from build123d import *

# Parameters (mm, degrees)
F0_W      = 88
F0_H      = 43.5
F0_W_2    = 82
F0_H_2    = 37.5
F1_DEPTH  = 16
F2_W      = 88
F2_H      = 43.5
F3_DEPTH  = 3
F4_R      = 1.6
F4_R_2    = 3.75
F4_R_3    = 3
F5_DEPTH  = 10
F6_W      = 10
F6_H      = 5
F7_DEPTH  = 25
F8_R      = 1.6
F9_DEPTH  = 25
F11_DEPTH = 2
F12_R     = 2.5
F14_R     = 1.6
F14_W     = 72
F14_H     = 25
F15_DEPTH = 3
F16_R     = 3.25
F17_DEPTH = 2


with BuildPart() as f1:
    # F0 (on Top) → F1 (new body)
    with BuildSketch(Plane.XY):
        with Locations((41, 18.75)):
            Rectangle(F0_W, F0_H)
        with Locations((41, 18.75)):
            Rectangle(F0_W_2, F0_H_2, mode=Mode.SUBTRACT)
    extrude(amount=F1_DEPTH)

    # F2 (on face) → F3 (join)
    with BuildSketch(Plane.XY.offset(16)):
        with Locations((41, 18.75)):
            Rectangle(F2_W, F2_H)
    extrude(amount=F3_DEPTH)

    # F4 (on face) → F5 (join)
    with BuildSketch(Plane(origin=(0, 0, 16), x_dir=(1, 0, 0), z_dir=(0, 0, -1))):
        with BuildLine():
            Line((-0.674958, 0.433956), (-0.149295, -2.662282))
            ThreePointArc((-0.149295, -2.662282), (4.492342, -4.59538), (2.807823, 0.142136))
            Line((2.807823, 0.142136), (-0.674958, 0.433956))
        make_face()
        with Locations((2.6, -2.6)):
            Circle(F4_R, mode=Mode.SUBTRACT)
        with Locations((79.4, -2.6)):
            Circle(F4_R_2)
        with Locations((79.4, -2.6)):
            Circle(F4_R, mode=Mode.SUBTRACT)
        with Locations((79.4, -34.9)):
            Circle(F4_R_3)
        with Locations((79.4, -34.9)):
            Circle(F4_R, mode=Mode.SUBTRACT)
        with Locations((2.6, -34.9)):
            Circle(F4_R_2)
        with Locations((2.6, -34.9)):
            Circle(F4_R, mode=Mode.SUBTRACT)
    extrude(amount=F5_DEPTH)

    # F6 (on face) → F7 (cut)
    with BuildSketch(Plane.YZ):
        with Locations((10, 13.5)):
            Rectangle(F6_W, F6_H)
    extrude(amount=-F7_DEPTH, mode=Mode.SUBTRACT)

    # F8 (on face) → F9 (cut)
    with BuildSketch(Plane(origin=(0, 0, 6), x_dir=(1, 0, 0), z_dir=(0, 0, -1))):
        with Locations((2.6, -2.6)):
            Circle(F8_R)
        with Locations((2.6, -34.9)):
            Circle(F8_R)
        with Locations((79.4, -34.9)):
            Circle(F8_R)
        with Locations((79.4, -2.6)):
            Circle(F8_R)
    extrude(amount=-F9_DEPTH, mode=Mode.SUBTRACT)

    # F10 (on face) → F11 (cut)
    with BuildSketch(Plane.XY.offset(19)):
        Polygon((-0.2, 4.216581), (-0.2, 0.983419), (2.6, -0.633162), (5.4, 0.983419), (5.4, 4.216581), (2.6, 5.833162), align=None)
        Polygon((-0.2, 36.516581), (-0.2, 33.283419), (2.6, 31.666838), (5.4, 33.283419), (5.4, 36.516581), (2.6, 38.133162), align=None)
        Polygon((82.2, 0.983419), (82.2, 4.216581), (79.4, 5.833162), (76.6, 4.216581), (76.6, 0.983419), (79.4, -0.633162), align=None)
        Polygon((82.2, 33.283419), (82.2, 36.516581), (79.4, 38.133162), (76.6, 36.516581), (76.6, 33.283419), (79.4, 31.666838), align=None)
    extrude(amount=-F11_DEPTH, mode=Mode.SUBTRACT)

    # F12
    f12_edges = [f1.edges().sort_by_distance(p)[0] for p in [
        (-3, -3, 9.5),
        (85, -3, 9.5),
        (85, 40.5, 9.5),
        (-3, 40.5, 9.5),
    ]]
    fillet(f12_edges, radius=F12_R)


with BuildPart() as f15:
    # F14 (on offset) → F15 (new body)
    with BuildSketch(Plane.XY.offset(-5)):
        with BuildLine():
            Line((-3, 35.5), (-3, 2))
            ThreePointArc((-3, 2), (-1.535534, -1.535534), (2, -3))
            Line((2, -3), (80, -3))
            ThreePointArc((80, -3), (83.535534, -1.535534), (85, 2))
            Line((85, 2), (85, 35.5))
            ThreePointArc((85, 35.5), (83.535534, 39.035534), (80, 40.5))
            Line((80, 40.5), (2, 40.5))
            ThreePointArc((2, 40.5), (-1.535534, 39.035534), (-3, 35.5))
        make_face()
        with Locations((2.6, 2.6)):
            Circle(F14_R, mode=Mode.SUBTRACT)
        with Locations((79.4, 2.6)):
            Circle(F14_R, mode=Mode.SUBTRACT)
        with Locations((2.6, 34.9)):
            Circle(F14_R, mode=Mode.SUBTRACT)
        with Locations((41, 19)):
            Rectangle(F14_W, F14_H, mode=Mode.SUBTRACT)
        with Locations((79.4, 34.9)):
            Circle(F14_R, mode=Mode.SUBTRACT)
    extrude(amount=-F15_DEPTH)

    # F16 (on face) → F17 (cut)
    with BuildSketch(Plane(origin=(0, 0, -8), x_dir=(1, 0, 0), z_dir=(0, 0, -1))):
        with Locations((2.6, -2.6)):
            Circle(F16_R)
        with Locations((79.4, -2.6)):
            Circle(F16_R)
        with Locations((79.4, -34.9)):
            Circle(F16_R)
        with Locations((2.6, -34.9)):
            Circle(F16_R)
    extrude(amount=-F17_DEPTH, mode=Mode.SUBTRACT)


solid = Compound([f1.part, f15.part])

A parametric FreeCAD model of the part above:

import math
import FreeCAD as App
import Part
import Sketcher

V = App.Vector
Q = App.Units.Quantity


def edges_at(feature, points):
    """Names of the edges that pass closest to the given points."""
    edges = feature.Shape.Edges
    near = lambda p: min(range(len(edges)), key=lambda i: edges[i].distToShape(Part.Vertex(*p))[0])
    return sorted({f"Edge{near(p) + 1}" for p in points})


def add_polygon(sketch, points):
    """Adds a closed chain of lines whose ends are joined by coincident constraints."""
    first, n = sketch.GeometryCount, len(points)
    for a, b in zip(points, points[1:] + points[:1]):
        sketch.addGeometry(Part.LineSegment(App.Vector(*a, 0), App.Vector(*b, 0)), False)
    for i in range(n):
        sketch.addConstraint(Sketcher.Constraint("Coincident", first + i, 2, first + (i + 1) % n, 1))

doc = App.newDocument("Part")
params = doc.addObject("Spreadsheet::Sheet", "Params")
for row, (alias, value) in enumerate([
    ("sketch1_width", "88 mm"),
    ("sketch1_width2", "82 mm"),
    ("sketch1_height", "43.5 mm"),
    ("sketch1_height2", "37.5 mm"),
    ("pad1_length", "16 mm"),
    ("sketch2_width", "88 mm"),
    ("sketch2_height", "43.5 mm"),
    ("pad2_length", "3 mm"),
    ("sketch3_diameter", "6 mm"),
    ("sketch3_diameter2", "3.2 mm"),
    ("sketch3_diameter3", "7.5 mm"),
    ("sketch3_radius", "2.75 mm"),
    ("pad3_length", "10 mm"),
    ("sketch4_width", "10 mm"),
    ("sketch4_height", "5 mm"),
    ("pocket1_length", "25 mm"),
    ("sketch5_diameter", "3.2 mm"),
    ("pocket2_length", "25 mm"),
    ("pocket3_length", "2 mm"),
    ("fillet_radius", "2.5 mm"),
    ("sketch7_radius", "5 mm"),
    ("sketch7_diameter", "3.2 mm"),
    ("sketch7_width", "78 mm"),
    ("sketch7_width2", "72 mm"),
    ("sketch7_height", "25 mm"),
    ("pad4_length", "3 mm"),
    ("sketch8_diameter", "6.5 mm"),
    ("pocket4_length", "2 mm"),
], start=1):
    params.set(f"A{row}", alias)
    params.set(f"B{row}", "=" + value)
    params.setAlias(f"B{row}", alias)

body = doc.addObject("PartDesign::Body", "Body")

# Sketch on XY plane
sketch1 = doc.addObject("Sketcher::SketchObject", "Sketch")
body.addObject(sketch1)
sketch1.AttachmentSupport = (doc.XY_Plane, [""])
sketch1.MapMode = "FlatFace"
add_polygon(sketch1, [(-3, 40), (-3, -3), (85, -3), (85, 40)])  # lines 0-3
add_polygon(sketch1, [(82, 0), (0, 0), (0, 38), (82, 38)])  # lines 4-7
sketch1.addConstraint([
    Sketcher.Constraint("Vertical", 0),
    Sketcher.Constraint("Horizontal", 1),
    Sketcher.Constraint("Vertical", 2),
    Sketcher.Constraint("Horizontal", 3),
    Sketcher.Constraint("Horizontal", 4),
    Sketcher.Constraint("Vertical", 5),
    Sketcher.Constraint("Horizontal", 6),
    Sketcher.Constraint("Vertical", 7),
    Sketcher.Constraint("Coincident", 4, 2, -1, 1),
    Sketcher.Constraint("DistanceX", 1, 1, 1, 2, Q("88 mm")),
    Sketcher.Constraint("DistanceX", 4, 2, 4, 1, Q("82 mm")),
    Sketcher.Constraint("DistanceY", 0, 2, 0, 1, Q("43.5 mm")),
    Sketcher.Constraint("DistanceY", 5, 1, 5, 2, Q("37.5 mm")),
    Sketcher.Constraint("DistanceX", 0, 2, -1, 1, Q("3 mm")),
    Sketcher.Constraint("DistanceY", 0, 2, -1, 1, Q("3 mm")),
])
sketch1.setExpression("Constraints[17]", "Params.sketch1_width")
sketch1.setExpression("Constraints[18]", "Params.sketch1_width2")
sketch1.setExpression("Constraints[19]", "Params.sketch1_height")
sketch1.setExpression("Constraints[20]", "Params.sketch1_height2")
pad1 = doc.addObject("PartDesign::Pad", "Pad")
body.addObject(pad1)
pad1.Profile = sketch1
pad1.setExpression("Length", "Params.pad1_length")

# Sketch on XY plane
sketch2 = doc.addObject("Sketcher::SketchObject", "Sketch001")
body.addObject(sketch2)
sketch2.AttachmentSupport = (doc.XY_Plane, [""])
sketch2.MapMode = "FlatFace"
sketch2.AttachmentOffset = App.Placement(V(0, 0, 16), App.Rotation())
add_polygon(sketch2, [(-3, 40), (-3, -3), (85, -3), (85, 40)])  # lines 0-3
sketch2.addConstraint([
    Sketcher.Constraint("Vertical", 0),
    Sketcher.Constraint("Horizontal", 1),
    Sketcher.Constraint("Vertical", 2),
    Sketcher.Constraint("Horizontal", 3),
    Sketcher.Constraint("DistanceX", 1, 1, 1, 2, Q("88 mm")),
    Sketcher.Constraint("DistanceY", 0, 2, 0, 1, Q("43.5 mm")),
    Sketcher.Constraint("DistanceX", 0, 2, -1, 1, Q("3 mm")),
    Sketcher.Constraint("DistanceY", 0, 2, -1, 1, Q("3 mm")),
])
sketch2.setExpression("Constraints[8]", "Params.sketch2_width")
sketch2.setExpression("Constraints[9]", "Params.sketch2_height")
pad2 = doc.addObject("PartDesign::Pad", "Pad001")
body.addObject(pad2)
pad2.Profile = sketch2
pad2.setExpression("Length", "Params.pad2_length")

# Sketch on XY plane
sketch3 = doc.addObject("Sketcher::SketchObject", "Sketch002")
body.addObject(sketch3)
sketch3.AttachmentSupport = (doc.XY_Plane, [""])
sketch3.MapMode = "FlatFace"
sketch3.AttachmentOffset = App.Placement(V(0, 0, 16), App.Rotation())
sketch3.addGeometry([
    Part.LineSegment(V(-0.7, -0.4, 0), V(-0.1, 2.7, 0)),  # 0
    Part.ArcOfCircle(Part.Circle(V(2.6, 2.6, 0), V(0, 0, 1), 2.8), math.radians(-86), math.radians(179)),  # 1
    Part.LineSegment(V(2.8, -0.1, 0), V(-0.7, -0.4, 0)),  # 2
    Part.Circle(V(2.6, 2.6, 0), V(0, 0, 1), 1.6),  # 3
    Part.Circle(V(79.4, 2.6, 0), V(0, 0, 1), 3.8),  # 4
    Part.Circle(V(79.4, 2.6, 0), V(0, 0, 1), 1.6),  # 5
    Part.Circle(V(79.4, 34.9, 0), V(0, 0, 1), 3),  # 6
    Part.Circle(V(79.4, 34.9, 0), V(0, 0, 1), 1.6),  # 7
    Part.Circle(V(2.6, 34.9, 0), V(0, 0, 1), 3.8),  # 8
    Part.Circle(V(2.6, 34.9, 0), V(0, 0, 1), 1.6),  # 9
], False)
sketch3.addConstraint([
    Sketcher.Constraint("Coincident", 0, 2, 1, 2),
    Sketcher.Constraint("Coincident", 1, 1, 2, 1),
    Sketcher.Constraint("Coincident", 2, 2, 0, 1),
    Sketcher.Constraint("Coincident", 3, 3, 1, 3),
    Sketcher.Constraint("Coincident", 5, 3, 4, 3),
    Sketcher.Constraint("Coincident", 7, 3, 6, 3),
    Sketcher.Constraint("Coincident", 9, 3, 8, 3),
    Sketcher.Constraint("Equal", 3, 5),
    Sketcher.Constraint("Equal", 5, 7),
    Sketcher.Constraint("Equal", 4, 8),
    Sketcher.Constraint("Equal", 7, 9),
    Sketcher.Constraint("Horizontal", 3, 3, 4, 3),
    Sketcher.Constraint("Horizontal", 7, 3, 8, 3),
    Sketcher.Constraint("Vertical", 5, 3, 6, 3),
    Sketcher.Constraint("Vertical", 3, 3, 8, 3),
    Sketcher.Constraint("Diameter", 6, Q("6 mm")),
    Sketcher.Constraint("Diameter", 3, Q("3.2 mm")),
    Sketcher.Constraint("Diameter", 4, Q("7.5 mm")),
    Sketcher.Constraint("Radius", 1, Q("2.75 mm")),
    Sketcher.Constraint("DistanceX", -1, 1, 1, 3, Q("2.6 mm")),
    Sketcher.Constraint("DistanceY", -1, 1, 1, 3, Q("2.6 mm")),
    Sketcher.Constraint("DistanceX", -1, 1, 4, 3, Q("79.4 mm")),
    Sketcher.Constraint("DistanceY", -1, 1, 6, 3, Q("34.9 mm")),
    Sketcher.Constraint("DistanceY", -1, 1, 0, 2, Q("2.662282 mm")),
    Sketcher.Constraint("DistanceX", 2, 2, 1, 1, Q("3.482781 mm")),
    Sketcher.Constraint("DistanceY", 2, 2, 1, 1, Q("0.29182 mm")),
    Sketcher.Constraint("Distance", 0, Q("3.140543 mm")),
])
sketch3.setExpression("Constraints[15]", "Params.sketch3_diameter")
sketch3.setExpression("Constraints[16]", "Params.sketch3_diameter2")
sketch3.setExpression("Constraints[17]", "Params.sketch3_diameter3")
sketch3.setExpression("Constraints[18]", "Params.sketch3_radius")
pad3 = doc.addObject("PartDesign::Pad", "Pad002")
body.addObject(pad3)
pad3.Profile = sketch3
pad3.setExpression("Length", "Params.pad3_length")
pad3.Reversed = True

# Sketch on YZ plane
sketch4 = doc.addObject("Sketcher::SketchObject", "Sketch003")
body.addObject(sketch4)
sketch4.AttachmentSupport = (doc.YZ_Plane, [""])
sketch4.MapMode = "FlatFace"
add_polygon(sketch4, [(5, 16), (5, 11), (15, 11), (15, 16)])  # lines 0-3
sketch4.addConstraint([
    Sketcher.Constraint("Vertical", 0),
    Sketcher.Constraint("Horizontal", 1),
    Sketcher.Constraint("Vertical", 2),
    Sketcher.Constraint("Horizontal", 3),
    Sketcher.Constraint("DistanceX", 1, 1, 1, 2, Q("10 mm")),
    Sketcher.Constraint("DistanceY", 0, 2, 0, 1, Q("5 mm")),
    Sketcher.Constraint("DistanceX", -1, 1, 0, 2, Q("5 mm")),
    Sketcher.Constraint("DistanceY", -1, 1, 0, 2, Q("11 mm")),
])
sketch4.setExpression("Constraints[8]", "Params.sketch4_width")
sketch4.setExpression("Constraints[9]", "Params.sketch4_height")
pocket1 = doc.addObject("PartDesign::Pocket", "Pocket")
body.addObject(pocket1)
pocket1.Profile = sketch4
pocket1.setExpression("Length", "Params.pocket1_length")

# Sketch on XY plane
sketch5 = doc.addObject("Sketcher::SketchObject", "Sketch004")
body.addObject(sketch5)
sketch5.AttachmentSupport = (doc.XY_Plane, [""])
sketch5.MapMode = "FlatFace"
sketch5.AttachmentOffset = App.Placement(V(0, 0, 6), App.Rotation())
sketch5.addGeometry([
    Part.Circle(V(2.6, 2.6, 0), V(0, 0, 1), 1.6),
    Part.Circle(V(2.6, 34.9, 0), V(0, 0, 1), 1.6),
    Part.Circle(V(79.4, 34.9, 0), V(0, 0, 1), 1.6),
    Part.Circle(V(79.4, 2.6, 0), V(0, 0, 1), 1.6),
], False)
sketch5.addConstraint([
    Sketcher.Constraint("Equal", 0, 1),
    Sketcher.Constraint("Equal", 1, 2),
    Sketcher.Constraint("Equal", 2, 3),
    Sketcher.Constraint("Horizontal", 1, 3, 2, 3),
    Sketcher.Constraint("Horizontal", 0, 3, 3, 3),
    Sketcher.Constraint("Vertical", 0, 3, 1, 3),
    Sketcher.Constraint("Vertical", 2, 3, 3, 3),
    Sketcher.Constraint("Diameter", 0, Q("3.2 mm")),
    Sketcher.Constraint("DistanceX", -1, 1, 0, 3, Q("2.6 mm")),
    Sketcher.Constraint("DistanceY", -1, 1, 0, 3, Q("2.6 mm")),
    Sketcher.Constraint("DistanceY", -1, 1, 1, 3, Q("34.9 mm")),
    Sketcher.Constraint("DistanceX", -1, 1, 2, 3, Q("79.4 mm")),
])
sketch5.setExpression("Constraints[7]", "Params.sketch5_diameter")
pocket2 = doc.addObject("PartDesign::Pocket", "Pocket001")
body.addObject(pocket2)
pocket2.Profile = sketch5
pocket2.setExpression("Length", "Params.pocket2_length")
pocket2.Reversed = True

# Sketch on XY plane
sketch6 = doc.addObject("Sketcher::SketchObject", "Sketch005")
body.addObject(sketch6)
sketch6.AttachmentSupport = (doc.XY_Plane, [""])
sketch6.MapMode = "FlatFace"
sketch6.AttachmentOffset = App.Placement(V(0, 0, 19), App.Rotation())
add_polygon(sketch6, [(-0.2, 4.2), (-0.2, 1), (2.6, -0.6), (5.4, 1), (5.4, 4.2), (2.6, 5.8)])  # lines 0-5
add_polygon(sketch6, [(-0.2, 36.5), (-0.2, 33.3), (2.6, 31.7), (5.4, 33.3), (5.4, 36.5), (2.6, 38.1)])  # lines 6-11
add_polygon(sketch6, [(82.2, 1), (82.2, 4.2), (79.4, 5.8), (76.6, 4.2), (76.6, 1), (79.4, -0.6)])  # lines 12-17
add_polygon(sketch6, [(82.2, 33.3), (82.2, 36.5), (79.4, 38.1), (76.6, 36.5), (76.6, 33.3), (79.4, 31.7)])  # lines 18-23
sketch6.addConstraint([
    Sketcher.Constraint("Vertical", 0),
    Sketcher.Constraint("Vertical", 3),
    Sketcher.Constraint("Vertical", 6),
    Sketcher.Constraint("Vertical", 9),
    Sketcher.Constraint("Vertical", 12),
    Sketcher.Constraint("Vertical", 15),
    Sketcher.Constraint("Vertical", 18),
    Sketcher.Constraint("Vertical", 21),
    Sketcher.Constraint("Parallel", 1, 4),
    Sketcher.Constraint("Parallel", 2, 5),
    Sketcher.Constraint("Parallel", 4, 7),
    Sketcher.Constraint("Parallel", 5, 8),
    Sketcher.Constraint("Parallel", 7, 10),
    Sketcher.Constraint("Parallel", 8, 11),
    Sketcher.Constraint("Parallel", 10, 13),
    Sketcher.Constraint("Parallel", 11, 14),
    Sketcher.Constraint("Parallel", 13, 16),
    Sketcher.Constraint("Parallel", 14, 17),
    Sketcher.Constraint("Parallel", 16, 19),
    Sketcher.Constraint("Parallel", 17, 20),
    Sketcher.Constraint("Parallel", 19, 22),
    Sketcher.Constraint("Parallel", 20, 23),
    Sketcher.Constraint("Horizontal", 0, 2, 2, 2),
    Sketcher.Constraint("Horizontal", 3, 2, 5, 2),
    Sketcher.Constraint("Horizontal", 6, 2, 8, 2),
    Sketcher.Constraint("Horizontal", 9, 2, 11, 2),
    Sketcher.Constraint("Horizontal", 5, 2, 12, 2),
    Sketcher.Constraint("Horizontal", 4, 2, 13, 2),
    Sketcher.Constraint("Horizontal", 12, 2, 14, 2),
    Sketcher.Constraint("Horizontal", 2, 2, 15, 2),
    Sketcher.Constraint("Horizontal", 1, 2, 16, 2),
    Sketcher.Constraint("Horizontal", 11, 2, 18, 2),
    Sketcher.Constraint("Horizontal", 10, 2, 19, 2),
    Sketcher.Constraint("Horizontal", 18, 2, 20, 2),
    Sketcher.Constraint("Horizontal", 8, 2, 21, 2),
    Sketcher.Constraint("Horizontal", 7, 2, 22, 2),
    Sketcher.Constraint("Vertical", 1, 2, 4, 2),
    Sketcher.Constraint("Vertical", 5, 2, 6, 2),
    Sketcher.Constraint("Vertical", 4, 2, 7, 2),
    Sketcher.Constraint("Vertical", 17, 2, 18, 2),
    Sketcher.Constraint("Equal", 3, 6),
    Sketcher.Constraint("Angle", 1, Q("-30.000004 deg")),
    Sketcher.Constraint("DistanceX", 3, 2, 13, 2, Q("74 mm")),
    Sketcher.Constraint("DistanceX", 0, 2, -1, 1, Q("0.2 mm")),
    Sketcher.Constraint("DistanceX", -1, 1, 1, 2, Q("2.6 mm")),
    Sketcher.Constraint("DistanceY", 0, 2, 6, 2, Q("32.3 mm")),
    Sketcher.Constraint("DistanceY", 0, 2, 0, 1, Q("3.233162 mm")),
    Sketcher.Constraint("DistanceY", -1, 1, 0, 2, Q("0.983419 mm")),
])
pocket3 = doc.addObject("PartDesign::Pocket", "Pocket002")
body.addObject(pocket3)
pocket3.Profile = sketch6
pocket3.setExpression("Length", "Params.pocket3_length")
doc.recompute()

fillet = doc.addObject("PartDesign::Fillet", "Fillet")
body.addObject(fillet)
fillet.Base = (pocket3, edges_at(pocket3, [
    (-3, -3, 9.5),
    (85, -3, 9.5),
    (85, 40.5, 9.5),
    (-3, 40.5, 9.5),
]))
fillet.setExpression("Radius", "Params.fillet_radius")
body2 = doc.addObject("PartDesign::Body", "Body001")

# Sketch on XY plane
sketch7 = doc.addObject("Sketcher::SketchObject", "Sketch006")
body2.addObject(sketch7)
sketch7.AttachmentSupport = (doc.getObject("XY_Plane001"), [""])
sketch7.MapMode = "FlatFace"
sketch7.AttachmentOffset = App.Placement(V(0, 0, -5), App.Rotation())
sketch7.addGeometry(Part.LineSegment(V(-3, 35.5, 0), V(-3, 2, 0)), False)  # 0
sketch7.addGeometry(Part.ArcOfCircle(Part.Circle(V(2, 2, 0), V(0, 0, 1), 5), math.radians(180), math.radians(270)), False)  # 1
sketch7.addGeometry(Part.LineSegment(V(2, -3, 0), V(80, -3, 0)), False)  # 2
sketch7.addGeometry(Part.ArcOfCircle(Part.Circle(V(80, 2, 0), V(0, 0, 1), 5), math.radians(-90), math.radians(0)), False)  # 3
sketch7.addGeometry(Part.LineSegment(V(85, 2, 0), V(85, 35.5, 0)), False)  # 4
sketch7.addGeometry(Part.ArcOfCircle(Part.Circle(V(80, 35.5, 0), V(0, 0, 1), 5), math.radians(0), math.radians(90)), False)  # 5
sketch7.addGeometry(Part.LineSegment(V(80, 40.5, 0), V(2, 40.5, 0)), False)  # 6
sketch7.addGeometry(Part.ArcOfCircle(Part.Circle(V(2, 35.5, 0), V(0, 0, 1), 5), math.radians(90), math.radians(180)), False)  # 7
sketch7.addGeometry(Part.Circle(V(2.6, 2.6, 0), V(0, 0, 1), 1.6), False)  # 8
sketch7.addGeometry(Part.Circle(V(79.4, 2.6, 0), V(0, 0, 1), 1.6), False)  # 9
sketch7.addGeometry(Part.Circle(V(2.6, 34.9, 0), V(0, 0, 1), 1.6), False)  # 10
add_polygon(sketch7, [(77, 6.5), (5, 6.5), (5, 31.5), (77, 31.5)])  # lines 11-14
sketch7.addGeometry(Part.Circle(V(79.4, 34.9, 0), V(0, 0, 1), 1.6), False)  # 15
sketch7.addConstraint([
    Sketcher.Constraint("Tangent", 0, 2, 1, 1),
    Sketcher.Constraint("Tangent", 1, 2, 2, 1),
    Sketcher.Constraint("Tangent", 2, 2, 3, 1),
    Sketcher.Constraint("Tangent", 3, 2, 4, 1),
    Sketcher.Constraint("Tangent", 4, 2, 5, 1),
    Sketcher.Constraint("Tangent", 5, 2, 6, 1),
    Sketcher.Constraint("Tangent", 6, 2, 7, 1),
    Sketcher.Constraint("Tangent", 7, 2, 0, 1),
    Sketcher.Constraint("Vertical", 0),
    Sketcher.Constraint("Horizontal", 2),
    Sketcher.Constraint("Vertical", 4),
    Sketcher.Constraint("Horizontal", 6),
    Sketcher.Constraint("Horizontal", 11),
    Sketcher.Constraint("Vertical", 12),
    Sketcher.Constraint("Horizontal", 13),
    Sketcher.Constraint("Vertical", 14),
    Sketcher.Constraint("Equal", 1, 3),
    Sketcher.Constraint("Equal", 3, 5),
    Sketcher.Constraint("Equal", 5, 7),
    Sketcher.Constraint("Equal", 8, 9),
    Sketcher.Constraint("Equal", 9, 10),
    Sketcher.Constraint("Equal", 10, 15),
    Sketcher.Constraint("Horizontal", 8, 3, 9, 3),
    Sketcher.Constraint("Horizontal", 10, 3, 15, 3),
    Sketcher.Constraint("Vertical", 8, 3, 10, 3),
    Sketcher.Constraint("Vertical", 9, 3, 15, 3),
    Sketcher.Constraint("Radius", 1, Q("5 mm")),
    Sketcher.Constraint("Diameter", 8, Q("3.2 mm")),
    Sketcher.Constraint("DistanceX", 2, 1, 2, 2, Q("78 mm")),
    Sketcher.Constraint("DistanceX", 11, 2, 11, 1, Q("72 mm")),
    Sketcher.Constraint("DistanceY", 12, 1, 12, 2, Q("25 mm")),
    Sketcher.Constraint("DistanceY", 0, 2, 0, 1, Q("33.5 mm")),
    Sketcher.Constraint("DistanceX", -1, 1, 1, 3, Q("2 mm")),
    Sketcher.Constraint("DistanceY", -1, 1, 1, 3, Q("2 mm")),
    Sketcher.Constraint("DistanceX", -1, 1, 11, 2, Q("5 mm")),
    Sketcher.Constraint("DistanceY", 12, 2, 7, 3, Q("4 mm")),
    Sketcher.Constraint("DistanceX", -1, 1, 8, 3, Q("2.6 mm")),
    Sketcher.Constraint("DistanceY", -1, 1, 8, 3, Q("2.6 mm")),
    Sketcher.Constraint("DistanceX", -1, 1, 9, 3, Q("79.4 mm")),
    Sketcher.Constraint("DistanceY", -1, 1, 10, 3, Q("34.9 mm")),
])
sketch7.setExpression("Constraints[30]", "Params.sketch7_radius")
sketch7.setExpression("Constraints[31]", "Params.sketch7_diameter")
sketch7.setExpression("Constraints[32]", "Params.sketch7_width")
sketch7.setExpression("Constraints[33]", "Params.sketch7_width2")
sketch7.setExpression("Constraints[34]", "Params.sketch7_height")
pad4 = doc.addObject("PartDesign::Pad", "Pad003")
body2.addObject(pad4)
pad4.Profile = sketch7
pad4.setExpression("Length", "Params.pad4_length")
pad4.Reversed = True

# Sketch on XY plane
sketch8 = doc.addObject("Sketcher::SketchObject", "Sketch007")
body2.addObject(sketch8)
sketch8.AttachmentSupport = (doc.getObject("XY_Plane001"), [""])
sketch8.MapMode = "FlatFace"
sketch8.AttachmentOffset = App.Placement(V(0, 0, -8), App.Rotation())
sketch8.addGeometry([
    Part.Circle(V(2.6, 2.6, 0), V(0, 0, 1), 3.2),
    Part.Circle(V(79.4, 2.6, 0), V(0, 0, 1), 3.2),
    Part.Circle(V(79.4, 34.9, 0), V(0, 0, 1), 3.2),
    Part.Circle(V(2.6, 34.9, 0), V(0, 0, 1), 3.2),
], False)
sketch8.addConstraint([
    Sketcher.Constraint("Equal", 0, 1),
    Sketcher.Constraint("Equal", 1, 2),
    Sketcher.Constraint("Equal", 2, 3),
    Sketcher.Constraint("Horizontal", 0, 3, 1, 3),
    Sketcher.Constraint("Horizontal", 2, 3, 3, 3),
    Sketcher.Constraint("Vertical", 1, 3, 2, 3),
    Sketcher.Constraint("Vertical", 0, 3, 3, 3),
    Sketcher.Constraint("Diameter", 0, Q("6.5 mm")),
    Sketcher.Constraint("DistanceX", -1, 1, 0, 3, Q("2.6 mm")),
    Sketcher.Constraint("DistanceY", -1, 1, 0, 3, Q("2.6 mm")),
    Sketcher.Constraint("DistanceX", -1, 1, 1, 3, Q("79.4 mm")),
    Sketcher.Constraint("DistanceY", -1, 1, 2, 3, Q("34.9 mm")),
])
sketch8.setExpression("Constraints[7]", "Params.sketch8_diameter")
pocket4 = doc.addObject("PartDesign::Pocket", "Pocket003")
body2.addObject(pocket4)
pocket4.Profile = sketch8
pocket4.setExpression("Length", "Params.pocket4_length")
pocket4.Reversed = True

doc.recompute()
